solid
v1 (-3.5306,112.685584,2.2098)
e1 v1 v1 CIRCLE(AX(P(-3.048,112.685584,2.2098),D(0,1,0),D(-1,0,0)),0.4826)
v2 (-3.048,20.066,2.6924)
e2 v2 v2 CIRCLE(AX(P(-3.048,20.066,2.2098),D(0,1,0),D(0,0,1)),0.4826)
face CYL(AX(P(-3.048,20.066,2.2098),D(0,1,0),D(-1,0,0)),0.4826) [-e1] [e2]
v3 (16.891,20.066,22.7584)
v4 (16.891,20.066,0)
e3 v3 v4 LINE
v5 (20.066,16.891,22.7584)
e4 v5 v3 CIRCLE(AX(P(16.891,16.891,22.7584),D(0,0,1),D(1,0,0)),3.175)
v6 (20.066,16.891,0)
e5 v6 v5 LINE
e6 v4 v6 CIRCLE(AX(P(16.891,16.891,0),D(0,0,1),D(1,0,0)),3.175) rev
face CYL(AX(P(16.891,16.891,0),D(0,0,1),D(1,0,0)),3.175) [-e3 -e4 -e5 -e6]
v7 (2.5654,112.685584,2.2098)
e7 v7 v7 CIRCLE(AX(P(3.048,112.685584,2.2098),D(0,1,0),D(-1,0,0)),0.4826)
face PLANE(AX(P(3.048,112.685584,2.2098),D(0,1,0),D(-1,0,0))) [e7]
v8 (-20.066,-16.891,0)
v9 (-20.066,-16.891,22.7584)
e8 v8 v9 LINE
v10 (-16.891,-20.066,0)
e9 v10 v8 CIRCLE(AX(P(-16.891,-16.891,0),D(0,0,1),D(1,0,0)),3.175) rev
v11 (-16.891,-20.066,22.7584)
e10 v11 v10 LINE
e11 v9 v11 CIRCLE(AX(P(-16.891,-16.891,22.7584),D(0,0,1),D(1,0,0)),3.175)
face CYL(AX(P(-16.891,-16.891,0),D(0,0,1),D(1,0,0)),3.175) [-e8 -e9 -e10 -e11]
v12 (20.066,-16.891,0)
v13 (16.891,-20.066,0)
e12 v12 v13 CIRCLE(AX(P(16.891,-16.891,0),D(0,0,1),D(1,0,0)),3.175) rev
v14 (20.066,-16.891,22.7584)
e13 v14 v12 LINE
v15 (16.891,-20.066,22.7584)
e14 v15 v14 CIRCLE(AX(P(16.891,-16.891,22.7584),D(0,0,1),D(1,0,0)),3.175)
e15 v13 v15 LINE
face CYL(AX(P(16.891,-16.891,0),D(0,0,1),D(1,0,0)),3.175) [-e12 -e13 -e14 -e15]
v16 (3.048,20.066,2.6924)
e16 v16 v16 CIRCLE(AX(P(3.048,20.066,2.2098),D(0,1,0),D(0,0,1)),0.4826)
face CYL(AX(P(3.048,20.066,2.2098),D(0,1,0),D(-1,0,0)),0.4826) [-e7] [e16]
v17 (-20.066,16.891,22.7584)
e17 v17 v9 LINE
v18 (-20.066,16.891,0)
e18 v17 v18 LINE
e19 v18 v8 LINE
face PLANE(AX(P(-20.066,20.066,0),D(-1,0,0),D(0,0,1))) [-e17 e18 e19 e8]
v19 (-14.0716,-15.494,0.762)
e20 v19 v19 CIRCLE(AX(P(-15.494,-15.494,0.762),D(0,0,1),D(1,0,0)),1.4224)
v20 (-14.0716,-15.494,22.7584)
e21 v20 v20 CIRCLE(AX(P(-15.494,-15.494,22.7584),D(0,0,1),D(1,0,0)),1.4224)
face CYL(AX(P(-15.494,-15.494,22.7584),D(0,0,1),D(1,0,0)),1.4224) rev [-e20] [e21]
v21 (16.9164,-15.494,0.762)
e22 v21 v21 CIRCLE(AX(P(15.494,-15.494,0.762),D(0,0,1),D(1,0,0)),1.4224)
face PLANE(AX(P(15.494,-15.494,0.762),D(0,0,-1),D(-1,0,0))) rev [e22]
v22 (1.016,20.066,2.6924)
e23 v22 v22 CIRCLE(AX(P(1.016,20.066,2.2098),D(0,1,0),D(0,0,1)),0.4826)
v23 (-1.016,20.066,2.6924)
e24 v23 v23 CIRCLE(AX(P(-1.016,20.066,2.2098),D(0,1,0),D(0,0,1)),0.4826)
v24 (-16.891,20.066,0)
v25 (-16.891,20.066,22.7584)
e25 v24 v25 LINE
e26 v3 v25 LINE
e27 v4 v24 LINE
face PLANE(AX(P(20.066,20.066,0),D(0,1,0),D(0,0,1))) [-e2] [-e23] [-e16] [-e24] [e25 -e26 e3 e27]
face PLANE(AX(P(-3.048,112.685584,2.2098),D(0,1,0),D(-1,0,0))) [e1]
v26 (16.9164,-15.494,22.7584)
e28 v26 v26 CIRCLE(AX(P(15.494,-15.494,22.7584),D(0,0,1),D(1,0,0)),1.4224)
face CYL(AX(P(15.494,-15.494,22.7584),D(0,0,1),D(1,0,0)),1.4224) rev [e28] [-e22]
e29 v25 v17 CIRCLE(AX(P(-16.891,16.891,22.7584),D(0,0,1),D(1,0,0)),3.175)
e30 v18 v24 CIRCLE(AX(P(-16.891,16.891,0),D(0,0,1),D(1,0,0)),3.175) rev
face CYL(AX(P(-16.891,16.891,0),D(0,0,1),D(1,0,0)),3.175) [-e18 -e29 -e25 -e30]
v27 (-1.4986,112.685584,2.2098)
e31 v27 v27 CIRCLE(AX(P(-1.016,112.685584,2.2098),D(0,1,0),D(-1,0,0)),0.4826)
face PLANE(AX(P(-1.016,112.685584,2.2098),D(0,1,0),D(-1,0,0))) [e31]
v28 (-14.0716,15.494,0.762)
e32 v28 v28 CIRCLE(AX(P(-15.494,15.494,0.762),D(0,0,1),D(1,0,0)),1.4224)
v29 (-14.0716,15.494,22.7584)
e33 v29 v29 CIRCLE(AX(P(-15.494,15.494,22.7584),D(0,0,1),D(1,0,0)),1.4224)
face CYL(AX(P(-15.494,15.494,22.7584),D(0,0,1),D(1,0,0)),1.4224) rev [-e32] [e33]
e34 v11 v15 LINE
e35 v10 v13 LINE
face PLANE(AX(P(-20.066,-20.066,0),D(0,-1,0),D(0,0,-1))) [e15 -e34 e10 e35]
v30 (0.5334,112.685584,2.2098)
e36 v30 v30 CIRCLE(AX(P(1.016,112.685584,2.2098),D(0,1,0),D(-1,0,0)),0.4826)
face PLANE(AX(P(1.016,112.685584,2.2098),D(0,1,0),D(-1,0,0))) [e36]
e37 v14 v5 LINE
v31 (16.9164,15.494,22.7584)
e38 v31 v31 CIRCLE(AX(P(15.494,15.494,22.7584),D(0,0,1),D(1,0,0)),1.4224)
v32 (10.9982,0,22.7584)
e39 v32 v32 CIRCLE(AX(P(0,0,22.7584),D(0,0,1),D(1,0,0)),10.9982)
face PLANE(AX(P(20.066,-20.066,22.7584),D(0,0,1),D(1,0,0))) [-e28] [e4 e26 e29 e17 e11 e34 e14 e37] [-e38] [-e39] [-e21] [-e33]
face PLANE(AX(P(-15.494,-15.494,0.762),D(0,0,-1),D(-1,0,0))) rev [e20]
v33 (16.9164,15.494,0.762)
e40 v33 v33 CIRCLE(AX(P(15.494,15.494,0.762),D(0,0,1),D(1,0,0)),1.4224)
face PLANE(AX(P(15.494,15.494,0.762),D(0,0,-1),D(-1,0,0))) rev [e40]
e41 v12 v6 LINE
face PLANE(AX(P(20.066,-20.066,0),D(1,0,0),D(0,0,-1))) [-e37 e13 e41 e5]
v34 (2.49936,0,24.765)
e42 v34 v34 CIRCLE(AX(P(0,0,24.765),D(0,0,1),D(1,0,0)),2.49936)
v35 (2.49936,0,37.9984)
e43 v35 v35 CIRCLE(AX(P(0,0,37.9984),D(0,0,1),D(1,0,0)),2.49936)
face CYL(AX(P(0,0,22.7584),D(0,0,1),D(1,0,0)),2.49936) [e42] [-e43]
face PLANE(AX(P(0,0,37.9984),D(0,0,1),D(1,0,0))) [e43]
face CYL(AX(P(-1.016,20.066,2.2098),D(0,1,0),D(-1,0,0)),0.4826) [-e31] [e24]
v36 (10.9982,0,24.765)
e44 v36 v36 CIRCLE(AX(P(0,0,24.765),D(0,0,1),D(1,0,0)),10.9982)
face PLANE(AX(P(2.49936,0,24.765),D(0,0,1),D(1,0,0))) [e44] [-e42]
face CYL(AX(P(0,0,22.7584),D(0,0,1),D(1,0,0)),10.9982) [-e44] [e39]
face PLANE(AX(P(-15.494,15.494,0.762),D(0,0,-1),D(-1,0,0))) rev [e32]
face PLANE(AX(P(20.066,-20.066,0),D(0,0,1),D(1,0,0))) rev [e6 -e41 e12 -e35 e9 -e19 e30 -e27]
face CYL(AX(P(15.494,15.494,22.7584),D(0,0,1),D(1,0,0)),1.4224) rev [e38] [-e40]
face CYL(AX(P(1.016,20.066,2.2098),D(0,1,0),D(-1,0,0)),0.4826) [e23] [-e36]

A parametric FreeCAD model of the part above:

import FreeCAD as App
import Part
import Sketcher
Q = App.Units.Quantity


def edges_at(feature, points):
    """Names of the edges that pass closest to the given points."""
    edges = feature.Shape.Edges
    near = lambda p: min(range(len(edges)), key=lambda i: edges[i].distToShape(Part.Vertex(*p))[0])
    return sorted({f"Edge{near(p) + 1}" for p in points})


def add_polygon(sketch, points):
    """Adds a closed chain of lines whose ends are joined by coincident constraints."""
    first, n = sketch.GeometryCount, len(points)
    for a, b in zip(points, points[1:] + points[:1]):
        sketch.addGeometry(Part.LineSegment(App.Vector(*a, 0), App.Vector(*b, 0)), False)
    for i in range(n):
        sketch.addConstraint(Sketcher.Constraint("Coincident", first + i, 2, first + (i + 1) % n, 1))

doc = App.newDocument("Part")
body = doc.addObject("PartDesign::Body", "Body")

sketch1 = doc.addObject("Sketcher::SketchObject", "Sketch")
body.addObject(sketch1)
sketch1.AttachmentSupport = (doc.XY_Plane, [""])
sketch1.MapMode = "FlatFace"
sketch1.AttachmentOffset = App.Placement(App.Vector(0, 0, 0.896 * 25.4), App.Rotation())
add_polygon(sketch1, [(-20, 20), (-20, -20), (20, -20), (20, 20)])
sketch1.addConstraint([
    Sketcher.Constraint("Vertical", 0),
    Sketcher.Constraint("Horizontal", 1),
    Sketcher.Constraint("Vertical", 2),
    Sketcher.Constraint("Horizontal", 3),
    Sketcher.Constraint("Symmetric", 0, 2, 2, 2, -1, 1),
    Sketcher.Constraint("Equal", 3, 0),
    Sketcher.Constraint("DistanceX", 1, 1, 1, 2, Q("1.58 in")),
])
pad1 = doc.addObject("PartDesign::Pad", "Pad")
body.addObject(pad1)
pad1.Profile = sketch1
pad1.Length = Q("0.896 in")
pad1.Reversed = True

sketch2 = doc.addObject("Sketcher::SketchObject", "Sketch001")
body.addObject(sketch2)
sketch2.AttachmentSupport = (doc.XY_Plane, [""])
sketch2.MapMode = "FlatFace"
sketch2.AttachmentOffset = App.Placement(App.Vector(0, 0, 0.087 * 25.4), App.Rotation())
add_polygon(sketch2, [(-2.57, 112.69), (-2.57, 20.07), (-3.05, 20.07), (-3.05, 112.69)])
sketch2.addGeometry(Part.LineSegment(App.Vector(-3.05, 20.07, 0), App.Vector(-3.05, 112.69, 0)), True)
sketch2.addConstraint([
    Sketcher.Constraint("Vertical", 0),
    Sketcher.Constraint("Horizontal", 1),
    Sketcher.Constraint("Vertical", 2),
    Sketcher.Constraint("Horizontal", 3),
    Sketcher.Constraint("Vertical", 4),
    Sketcher.Constraint("Coincident", 4, 1, 1, 2),
    Sketcher.Constraint("Horizontal", 3, 2, 4, 2),
    Sketcher.Constraint("DistanceX", 1, 2, 1, 1, Q("0.019 in")),
    Sketcher.Constraint("DistanceY", -1, 1, 0, 2, Q("0.79 in")),
    Sketcher.Constraint("DistanceX", 1, 2, -1, 1, Q("0.12 in")),
    Sketcher.Constraint("DistanceY", 0, 2, 0, 1, Q("92.619584 mm")),
])
revolution = doc.addObject("PartDesign::Revolution", "Revolution")
body.addObject(revolution)
revolution.Profile = sketch2
revolution.ReferenceAxis = (sketch2, ["Axis0"])
revolution.Angle = 360

sketch3 = doc.addObject("Sketcher::SketchObject", "Sketch002")
body.addObject(sketch3)
sketch3.AttachmentSupport = (doc.XY_Plane, [""])
sketch3.MapMode = "FlatFace"
sketch3.AttachmentOffset = App.Placement(App.Vector(0, 0, 0.087 * 25.4), App.Rotation())
add_polygon(sketch3, [(1.5, 112.69), (1.5, 20.07), (1.02, 20.07), (1.02, 112.69)])
sketch3.addGeometry(Part.LineSegment(App.Vector(1.02, 20.07, 0), App.Vector(1.02, 112.69, 0)), True)
sketch3.addConstraint([
    Sketcher.Constraint("Vertical", 0),
    Sketcher.Constraint("Horizontal", 1),
    Sketcher.Constraint("Vertical", 2),
    Sketcher.Constraint("Horizontal", 3),
    Sketcher.Constraint("Vertical", 4),
    Sketcher.Constraint("Coincident", 4, 1, 1, 2),
    Sketcher.Constraint("Horizontal", 3, 2, 4, 2),
    Sketcher.Constraint("DistanceX", 1, 2, 1, 1, Q("0.019 in")),
    Sketcher.Constraint("DistanceY", -1, 1, 0, 2, Q("0.79 in")),
    Sketcher.Constraint("DistanceX", -1, 1, 1, 2, Q("0.04 in")),
    Sketcher.Constraint("DistanceY", 0, 2, 0, 1, Q("92.619584 mm")),
])
revolution2 = doc.addObject("PartDesign::Revolution", "Revolution001")
body.addObject(revolution2)
revolution2.Profile = sketch3
revolution2.ReferenceAxis = (sketch3, ["Axis0"])
revolution2.Angle = 360

sketch4 = doc.addObject("Sketcher::SketchObject", "Sketch003")
body.addObject(sketch4)
sketch4.AttachmentSupport = (doc.XY_Plane, [""])
sketch4.MapMode = "FlatFace"
sketch4.AttachmentOffset = App.Placement(App.Vector(0, 0, 0.087 * 25.4), App.Rotation())
add_polygon(sketch4, [(3.53, 112.69), (3.53, 20.07), (3.05, 20.07), (3.05, 112.69)])
sketch4.addGeometry(Part.LineSegment(App.Vector(3.05, 20.07, 0), App.Vector(3.05, 112.69, 0)), True)
sketch4.addConstraint([
    Sketcher.Constraint("Vertical", 0),
    Sketcher.Constraint("Horizontal", 1),
    Sketcher.Constraint("Vertical", 2),
    Sketcher.Constraint("Horizontal", 3),
    Sketcher.Constraint("Vertical", 4),
    Sketcher.Constraint("Coincident", 4, 1, 1, 2),
    Sketcher.Constraint("Horizontal", 3, 2, 4, 2),
    Sketcher.Constraint("DistanceX", 1, 2, 1, 1, Q("0.019 in")),
    Sketcher.Constraint("DistanceY", -1, 1, 0, 2, Q("0.79 in")),
    Sketcher.Constraint("DistanceX", -1, 1, 1, 2, Q("0.12 in")),
    Sketcher.Constraint("DistanceY", 0, 2, 0, 1, Q("92.619584 mm")),
])
revolution3 = doc.addObject("PartDesign::Revolution", "Revolution002")
body.addObject(revolution3)
revolution3.Profile = sketch4
revolution3.ReferenceAxis = (sketch4, ["Axis0"])
revolution3.Angle = 360

sketch5 = doc.addObject("Sketcher::SketchObject", "Sketch004")
body.addObject(sketch5)
sketch5.AttachmentSupport = (doc.XY_Plane, [""])
sketch5.MapMode = "FlatFace"
sketch5.AttachmentOffset = App.Placement(App.Vector(0, 0, 0.087 * 25.4), App.Rotation())
add_polygon(sketch5, [(-0.53, 112.69), (-0.53, 20.07), (-1.02, 20.07), (-1.02, 112.69)])
sketch5.addGeometry(Part.LineSegment(App.Vector(-1.02, 20.07, 0), App.Vector(-1.02, 112.69, 0)), True)
sketch5.addConstraint([
    Sketcher.Constraint("Vertical", 0),
    Sketcher.Constraint("Horizontal", 1),
    Sketcher.Constraint("Vertical", 2),
    Sketcher.Constraint("Horizontal", 3),
    Sketcher.Constraint("Vertical", 4),
    Sketcher.Constraint("Coincident", 4, 1, 1, 2),
    Sketcher.Constraint("Horizontal", 3, 2, 4, 2),
    Sketcher.Constraint("DistanceX", 1, 2, 1, 1, Q("0.019 in")),
    Sketcher.Constraint("DistanceY", -1, 1, 0, 2, Q("0.79 in")),
    Sketcher.Constraint("DistanceX", 1, 2, -1, 1, Q("0.04 in")),
    Sketcher.Constraint("DistanceY", 0, 2, 0, 1, Q("92.619584 mm")),
])
revolution4 = doc.addObject("PartDesign::Revolution", "Revolution003")
body.addObject(revolution4)
revolution4.Profile = sketch5
revolution4.ReferenceAxis = (sketch5, ["Axis0"])
revolution4.Angle = 360

sketch6 = doc.addObject("Sketcher::SketchObject", "Sketch005")
body.addObject(sketch6)
sketch6.AttachmentSupport = (doc.XZ_Plane, [""])
sketch6.MapMode = "FlatFace"
add_polygon(sketch6, [(11, 22.8), (0, 22.8), (0, 38), (2.5, 38), (2.5, 24.8), (11, 24.8)])
sketch6.addConstraint([
    Sketcher.Constraint("Horizontal", 0),
    Sketcher.Constraint("Vertical", 1),
    Sketcher.Constraint("Horizontal", 2),
    Sketcher.Constraint("Vertical", 3),
    Sketcher.Constraint("Horizontal", 4),
    Sketcher.Constraint("Vertical", 5),
    Sketcher.Constraint("PointOnObject", 0, 2, -2),
    Sketcher.Constraint("DistanceY", 1, 1, 1, 2, Q("0.6 in")),
    Sketcher.Constraint("DistanceX", 0, 2, 0, 1, Q("0.433 in")),
    Sketcher.Constraint("DistanceY", 3, 2, 3, 1, Q("0.521 in")),
    Sketcher.Constraint("DistanceX", 2, 1, 2, 2, Q("0.0984 in")),
    Sketcher.Constraint("DistanceY", -1, 1, 0, 2, Q("0.896 in")),
])
revolution5 = doc.addObject("PartDesign::Revolution", "Revolution004")
body.addObject(revolution5)
revolution5.Profile = sketch6
revolution5.ReferenceAxis = (sketch6, ["V_Axis"])
revolution5.Angle = 360

sketch7 = doc.addObject("Sketcher::SketchObject", "Sketch006")
body.addObject(sketch7)
sketch7.AttachmentSupport = (doc.XY_Plane, [""])
sketch7.MapMode = "FlatFace"
sketch7.AttachmentOffset = App.Placement(App.Vector(0, 0, 0.896 * 25.4), App.Rotation())
sketch7.addGeometry(Part.Circle(App.Vector(-15.5, 15.5, 0), App.Vector(0, 0, 1), 1.4), False)
sketch7.addConstraint([
    Sketcher.Constraint("Diameter", 0, Q("0.112 in")),
    Sketcher.Constraint("DistanceX", 0, 3, -1, 1, Q("0.61 in")),
    Sketcher.Constraint("DistanceY", -1, 1, 0, 3, Q("0.61 in")),
])
doc.recompute()
hole = doc.addObject("PartDesign::Hole", "Hole")
body.addObject(hole)
hole.Profile = sketch7
hole.ThreadType = "None"
hole.Diameter = Q("0.112 in")
hole.DepthType = "Dimension"
hole.Depth = Q("0.866 in")
hole.DrillPoint = "Flat"

sketch8 = doc.addObject("Sketcher::SketchObject", "Sketch007")
body.addObject(sketch8)
sketch8.AttachmentSupport = (doc.XY_Plane, [""])
sketch8.MapMode = "FlatFace"
sketch8.AttachmentOffset = App.Placement(App.Vector(0, 0, 0.896 * 25.4), App.Rotation())
sketch8.addGeometry(Part.Circle(App.Vector(15.5, 15.5, 0), App.Vector(0, 0, 1), 1.4), False)
sketch8.addConstraint([
    Sketcher.Constraint("Diameter", 0, Q("0.112 in")),
    Sketcher.Constraint("DistanceX", -1, 1, 0, 3, Q("0.61 in")),
    Sketcher.Constraint("DistanceY", -1, 1, 0, 3, Q("0.61 in")),
])
doc.recompute()
hole2 = doc.addObject("PartDesign::Hole", "Hole001")
body.addObject(hole2)
hole2.Profile = sketch8
hole2.ThreadType = "None"
hole2.Diameter = Q("0.112 in")
hole2.DepthType = "Dimension"
hole2.Depth = Q("0.866 in")
hole2.DrillPoint = "Flat"

sketch9 = doc.addObject("Sketcher::SketchObject", "Sketch008")
body.addObject(sketch9)
sketch9.AttachmentSupport = (doc.XY_Plane, [""])
sketch9.MapMode = "FlatFace"
sketch9.AttachmentOffset = App.Placement(App.Vector(0, 0, 0.896 * 25.4), App.Rotation())
sketch9.addGeometry(Part.Circle(App.Vector(-15.5, -15.5, 0), App.Vector(0, 0, 1), 1.4), False)
sketch9.addConstraint([
    Sketcher.Constraint("Diameter", 0, Q("0.112 in")),
    Sketcher.Constraint("DistanceX", 0, 3, -1, 1, Q("0.61 in")),
    Sketcher.Constraint("DistanceY", 0, 3, -1, 1, Q("0.61 in")),
])
doc.recompute()
hole3 = doc.addObject("PartDesign::Hole", "Hole002")
body.addObject(hole3)
hole3.Profile = sketch9
hole3.ThreadType = "None"
hole3.Diameter = Q("0.112 in")
hole3.DepthType = "Dimension"
hole3.Depth = Q("0.866 in")
hole3.DrillPoint = "Flat"

sketch10 = doc.addObject("Sketcher::SketchObject", "Sketch009")
body.addObject(sketch10)
sketch10.AttachmentSupport = (doc.XY_Plane, [""])
sketch10.MapMode = "FlatFace"
sketch10.AttachmentOffset = App.Placement(App.Vector(0, 0, 0.896 * 25.4), App.Rotation())
sketch10.addGeometry(Part.Circle(App.Vector(15.5, -15.5, 0), App.Vector(0, 0, 1), 1.4), False)
sketch10.addConstraint([
    Sketcher.Constraint("Diameter", 0, Q("0.112 in")),
    Sketcher.Constraint("DistanceX", -1, 1, 0, 3, Q("0.61 in")),
    Sketcher.Constraint("DistanceY", 0, 3, -1, 1, Q("0.61 in")),
])
doc.recompute()
hole4 = doc.addObject("PartDesign::Hole", "Hole003")
body.addObject(hole4)
hole4.Profile = sketch10
hole4.ThreadType = "None"
hole4.Diameter = Q("0.112 in")
hole4.DepthType = "Dimension"
hole4.Depth = Q("0.866 in")
hole4.DrillPoint = "Flat"
doc.recompute()

fillet = doc.addObject("PartDesign::Fillet", "Fillet")
body.addObject(fillet)
fillet.Base = (hole4, edges_at(hole4, [(20.066, -20.066, 11.379)]))
fillet.Radius = Q("0.125 in")
doc.recompute()

fillet2 = doc.addObject("PartDesign::Fillet", "Fillet001")
body.addObject(fillet2)
fillet2.Base = (fillet, edges_at(fillet, [(-20.066, -20.066, 11.379)]))
fillet2.Radius = Q("0.125 in")
doc.recompute()

fillet3 = doc.addObject("PartDesign::Fillet", "Fillet002")
body.addObject(fillet3)
fillet3.Base = (fillet2, edges_at(fillet2, [(20.066, 20.066, 11.379)]))
fillet3.Radius = Q("0.125 in")
doc.recompute()

fillet4 = doc.addObject("PartDesign::Fillet", "Fillet003")
body.addObject(fillet4)
fillet4.Base = (fillet3, edges_at(fillet3, [(-20.066, 20.066, 11.379)]))
fillet4.Radius = Q("0.125 in")

doc.recompute()
